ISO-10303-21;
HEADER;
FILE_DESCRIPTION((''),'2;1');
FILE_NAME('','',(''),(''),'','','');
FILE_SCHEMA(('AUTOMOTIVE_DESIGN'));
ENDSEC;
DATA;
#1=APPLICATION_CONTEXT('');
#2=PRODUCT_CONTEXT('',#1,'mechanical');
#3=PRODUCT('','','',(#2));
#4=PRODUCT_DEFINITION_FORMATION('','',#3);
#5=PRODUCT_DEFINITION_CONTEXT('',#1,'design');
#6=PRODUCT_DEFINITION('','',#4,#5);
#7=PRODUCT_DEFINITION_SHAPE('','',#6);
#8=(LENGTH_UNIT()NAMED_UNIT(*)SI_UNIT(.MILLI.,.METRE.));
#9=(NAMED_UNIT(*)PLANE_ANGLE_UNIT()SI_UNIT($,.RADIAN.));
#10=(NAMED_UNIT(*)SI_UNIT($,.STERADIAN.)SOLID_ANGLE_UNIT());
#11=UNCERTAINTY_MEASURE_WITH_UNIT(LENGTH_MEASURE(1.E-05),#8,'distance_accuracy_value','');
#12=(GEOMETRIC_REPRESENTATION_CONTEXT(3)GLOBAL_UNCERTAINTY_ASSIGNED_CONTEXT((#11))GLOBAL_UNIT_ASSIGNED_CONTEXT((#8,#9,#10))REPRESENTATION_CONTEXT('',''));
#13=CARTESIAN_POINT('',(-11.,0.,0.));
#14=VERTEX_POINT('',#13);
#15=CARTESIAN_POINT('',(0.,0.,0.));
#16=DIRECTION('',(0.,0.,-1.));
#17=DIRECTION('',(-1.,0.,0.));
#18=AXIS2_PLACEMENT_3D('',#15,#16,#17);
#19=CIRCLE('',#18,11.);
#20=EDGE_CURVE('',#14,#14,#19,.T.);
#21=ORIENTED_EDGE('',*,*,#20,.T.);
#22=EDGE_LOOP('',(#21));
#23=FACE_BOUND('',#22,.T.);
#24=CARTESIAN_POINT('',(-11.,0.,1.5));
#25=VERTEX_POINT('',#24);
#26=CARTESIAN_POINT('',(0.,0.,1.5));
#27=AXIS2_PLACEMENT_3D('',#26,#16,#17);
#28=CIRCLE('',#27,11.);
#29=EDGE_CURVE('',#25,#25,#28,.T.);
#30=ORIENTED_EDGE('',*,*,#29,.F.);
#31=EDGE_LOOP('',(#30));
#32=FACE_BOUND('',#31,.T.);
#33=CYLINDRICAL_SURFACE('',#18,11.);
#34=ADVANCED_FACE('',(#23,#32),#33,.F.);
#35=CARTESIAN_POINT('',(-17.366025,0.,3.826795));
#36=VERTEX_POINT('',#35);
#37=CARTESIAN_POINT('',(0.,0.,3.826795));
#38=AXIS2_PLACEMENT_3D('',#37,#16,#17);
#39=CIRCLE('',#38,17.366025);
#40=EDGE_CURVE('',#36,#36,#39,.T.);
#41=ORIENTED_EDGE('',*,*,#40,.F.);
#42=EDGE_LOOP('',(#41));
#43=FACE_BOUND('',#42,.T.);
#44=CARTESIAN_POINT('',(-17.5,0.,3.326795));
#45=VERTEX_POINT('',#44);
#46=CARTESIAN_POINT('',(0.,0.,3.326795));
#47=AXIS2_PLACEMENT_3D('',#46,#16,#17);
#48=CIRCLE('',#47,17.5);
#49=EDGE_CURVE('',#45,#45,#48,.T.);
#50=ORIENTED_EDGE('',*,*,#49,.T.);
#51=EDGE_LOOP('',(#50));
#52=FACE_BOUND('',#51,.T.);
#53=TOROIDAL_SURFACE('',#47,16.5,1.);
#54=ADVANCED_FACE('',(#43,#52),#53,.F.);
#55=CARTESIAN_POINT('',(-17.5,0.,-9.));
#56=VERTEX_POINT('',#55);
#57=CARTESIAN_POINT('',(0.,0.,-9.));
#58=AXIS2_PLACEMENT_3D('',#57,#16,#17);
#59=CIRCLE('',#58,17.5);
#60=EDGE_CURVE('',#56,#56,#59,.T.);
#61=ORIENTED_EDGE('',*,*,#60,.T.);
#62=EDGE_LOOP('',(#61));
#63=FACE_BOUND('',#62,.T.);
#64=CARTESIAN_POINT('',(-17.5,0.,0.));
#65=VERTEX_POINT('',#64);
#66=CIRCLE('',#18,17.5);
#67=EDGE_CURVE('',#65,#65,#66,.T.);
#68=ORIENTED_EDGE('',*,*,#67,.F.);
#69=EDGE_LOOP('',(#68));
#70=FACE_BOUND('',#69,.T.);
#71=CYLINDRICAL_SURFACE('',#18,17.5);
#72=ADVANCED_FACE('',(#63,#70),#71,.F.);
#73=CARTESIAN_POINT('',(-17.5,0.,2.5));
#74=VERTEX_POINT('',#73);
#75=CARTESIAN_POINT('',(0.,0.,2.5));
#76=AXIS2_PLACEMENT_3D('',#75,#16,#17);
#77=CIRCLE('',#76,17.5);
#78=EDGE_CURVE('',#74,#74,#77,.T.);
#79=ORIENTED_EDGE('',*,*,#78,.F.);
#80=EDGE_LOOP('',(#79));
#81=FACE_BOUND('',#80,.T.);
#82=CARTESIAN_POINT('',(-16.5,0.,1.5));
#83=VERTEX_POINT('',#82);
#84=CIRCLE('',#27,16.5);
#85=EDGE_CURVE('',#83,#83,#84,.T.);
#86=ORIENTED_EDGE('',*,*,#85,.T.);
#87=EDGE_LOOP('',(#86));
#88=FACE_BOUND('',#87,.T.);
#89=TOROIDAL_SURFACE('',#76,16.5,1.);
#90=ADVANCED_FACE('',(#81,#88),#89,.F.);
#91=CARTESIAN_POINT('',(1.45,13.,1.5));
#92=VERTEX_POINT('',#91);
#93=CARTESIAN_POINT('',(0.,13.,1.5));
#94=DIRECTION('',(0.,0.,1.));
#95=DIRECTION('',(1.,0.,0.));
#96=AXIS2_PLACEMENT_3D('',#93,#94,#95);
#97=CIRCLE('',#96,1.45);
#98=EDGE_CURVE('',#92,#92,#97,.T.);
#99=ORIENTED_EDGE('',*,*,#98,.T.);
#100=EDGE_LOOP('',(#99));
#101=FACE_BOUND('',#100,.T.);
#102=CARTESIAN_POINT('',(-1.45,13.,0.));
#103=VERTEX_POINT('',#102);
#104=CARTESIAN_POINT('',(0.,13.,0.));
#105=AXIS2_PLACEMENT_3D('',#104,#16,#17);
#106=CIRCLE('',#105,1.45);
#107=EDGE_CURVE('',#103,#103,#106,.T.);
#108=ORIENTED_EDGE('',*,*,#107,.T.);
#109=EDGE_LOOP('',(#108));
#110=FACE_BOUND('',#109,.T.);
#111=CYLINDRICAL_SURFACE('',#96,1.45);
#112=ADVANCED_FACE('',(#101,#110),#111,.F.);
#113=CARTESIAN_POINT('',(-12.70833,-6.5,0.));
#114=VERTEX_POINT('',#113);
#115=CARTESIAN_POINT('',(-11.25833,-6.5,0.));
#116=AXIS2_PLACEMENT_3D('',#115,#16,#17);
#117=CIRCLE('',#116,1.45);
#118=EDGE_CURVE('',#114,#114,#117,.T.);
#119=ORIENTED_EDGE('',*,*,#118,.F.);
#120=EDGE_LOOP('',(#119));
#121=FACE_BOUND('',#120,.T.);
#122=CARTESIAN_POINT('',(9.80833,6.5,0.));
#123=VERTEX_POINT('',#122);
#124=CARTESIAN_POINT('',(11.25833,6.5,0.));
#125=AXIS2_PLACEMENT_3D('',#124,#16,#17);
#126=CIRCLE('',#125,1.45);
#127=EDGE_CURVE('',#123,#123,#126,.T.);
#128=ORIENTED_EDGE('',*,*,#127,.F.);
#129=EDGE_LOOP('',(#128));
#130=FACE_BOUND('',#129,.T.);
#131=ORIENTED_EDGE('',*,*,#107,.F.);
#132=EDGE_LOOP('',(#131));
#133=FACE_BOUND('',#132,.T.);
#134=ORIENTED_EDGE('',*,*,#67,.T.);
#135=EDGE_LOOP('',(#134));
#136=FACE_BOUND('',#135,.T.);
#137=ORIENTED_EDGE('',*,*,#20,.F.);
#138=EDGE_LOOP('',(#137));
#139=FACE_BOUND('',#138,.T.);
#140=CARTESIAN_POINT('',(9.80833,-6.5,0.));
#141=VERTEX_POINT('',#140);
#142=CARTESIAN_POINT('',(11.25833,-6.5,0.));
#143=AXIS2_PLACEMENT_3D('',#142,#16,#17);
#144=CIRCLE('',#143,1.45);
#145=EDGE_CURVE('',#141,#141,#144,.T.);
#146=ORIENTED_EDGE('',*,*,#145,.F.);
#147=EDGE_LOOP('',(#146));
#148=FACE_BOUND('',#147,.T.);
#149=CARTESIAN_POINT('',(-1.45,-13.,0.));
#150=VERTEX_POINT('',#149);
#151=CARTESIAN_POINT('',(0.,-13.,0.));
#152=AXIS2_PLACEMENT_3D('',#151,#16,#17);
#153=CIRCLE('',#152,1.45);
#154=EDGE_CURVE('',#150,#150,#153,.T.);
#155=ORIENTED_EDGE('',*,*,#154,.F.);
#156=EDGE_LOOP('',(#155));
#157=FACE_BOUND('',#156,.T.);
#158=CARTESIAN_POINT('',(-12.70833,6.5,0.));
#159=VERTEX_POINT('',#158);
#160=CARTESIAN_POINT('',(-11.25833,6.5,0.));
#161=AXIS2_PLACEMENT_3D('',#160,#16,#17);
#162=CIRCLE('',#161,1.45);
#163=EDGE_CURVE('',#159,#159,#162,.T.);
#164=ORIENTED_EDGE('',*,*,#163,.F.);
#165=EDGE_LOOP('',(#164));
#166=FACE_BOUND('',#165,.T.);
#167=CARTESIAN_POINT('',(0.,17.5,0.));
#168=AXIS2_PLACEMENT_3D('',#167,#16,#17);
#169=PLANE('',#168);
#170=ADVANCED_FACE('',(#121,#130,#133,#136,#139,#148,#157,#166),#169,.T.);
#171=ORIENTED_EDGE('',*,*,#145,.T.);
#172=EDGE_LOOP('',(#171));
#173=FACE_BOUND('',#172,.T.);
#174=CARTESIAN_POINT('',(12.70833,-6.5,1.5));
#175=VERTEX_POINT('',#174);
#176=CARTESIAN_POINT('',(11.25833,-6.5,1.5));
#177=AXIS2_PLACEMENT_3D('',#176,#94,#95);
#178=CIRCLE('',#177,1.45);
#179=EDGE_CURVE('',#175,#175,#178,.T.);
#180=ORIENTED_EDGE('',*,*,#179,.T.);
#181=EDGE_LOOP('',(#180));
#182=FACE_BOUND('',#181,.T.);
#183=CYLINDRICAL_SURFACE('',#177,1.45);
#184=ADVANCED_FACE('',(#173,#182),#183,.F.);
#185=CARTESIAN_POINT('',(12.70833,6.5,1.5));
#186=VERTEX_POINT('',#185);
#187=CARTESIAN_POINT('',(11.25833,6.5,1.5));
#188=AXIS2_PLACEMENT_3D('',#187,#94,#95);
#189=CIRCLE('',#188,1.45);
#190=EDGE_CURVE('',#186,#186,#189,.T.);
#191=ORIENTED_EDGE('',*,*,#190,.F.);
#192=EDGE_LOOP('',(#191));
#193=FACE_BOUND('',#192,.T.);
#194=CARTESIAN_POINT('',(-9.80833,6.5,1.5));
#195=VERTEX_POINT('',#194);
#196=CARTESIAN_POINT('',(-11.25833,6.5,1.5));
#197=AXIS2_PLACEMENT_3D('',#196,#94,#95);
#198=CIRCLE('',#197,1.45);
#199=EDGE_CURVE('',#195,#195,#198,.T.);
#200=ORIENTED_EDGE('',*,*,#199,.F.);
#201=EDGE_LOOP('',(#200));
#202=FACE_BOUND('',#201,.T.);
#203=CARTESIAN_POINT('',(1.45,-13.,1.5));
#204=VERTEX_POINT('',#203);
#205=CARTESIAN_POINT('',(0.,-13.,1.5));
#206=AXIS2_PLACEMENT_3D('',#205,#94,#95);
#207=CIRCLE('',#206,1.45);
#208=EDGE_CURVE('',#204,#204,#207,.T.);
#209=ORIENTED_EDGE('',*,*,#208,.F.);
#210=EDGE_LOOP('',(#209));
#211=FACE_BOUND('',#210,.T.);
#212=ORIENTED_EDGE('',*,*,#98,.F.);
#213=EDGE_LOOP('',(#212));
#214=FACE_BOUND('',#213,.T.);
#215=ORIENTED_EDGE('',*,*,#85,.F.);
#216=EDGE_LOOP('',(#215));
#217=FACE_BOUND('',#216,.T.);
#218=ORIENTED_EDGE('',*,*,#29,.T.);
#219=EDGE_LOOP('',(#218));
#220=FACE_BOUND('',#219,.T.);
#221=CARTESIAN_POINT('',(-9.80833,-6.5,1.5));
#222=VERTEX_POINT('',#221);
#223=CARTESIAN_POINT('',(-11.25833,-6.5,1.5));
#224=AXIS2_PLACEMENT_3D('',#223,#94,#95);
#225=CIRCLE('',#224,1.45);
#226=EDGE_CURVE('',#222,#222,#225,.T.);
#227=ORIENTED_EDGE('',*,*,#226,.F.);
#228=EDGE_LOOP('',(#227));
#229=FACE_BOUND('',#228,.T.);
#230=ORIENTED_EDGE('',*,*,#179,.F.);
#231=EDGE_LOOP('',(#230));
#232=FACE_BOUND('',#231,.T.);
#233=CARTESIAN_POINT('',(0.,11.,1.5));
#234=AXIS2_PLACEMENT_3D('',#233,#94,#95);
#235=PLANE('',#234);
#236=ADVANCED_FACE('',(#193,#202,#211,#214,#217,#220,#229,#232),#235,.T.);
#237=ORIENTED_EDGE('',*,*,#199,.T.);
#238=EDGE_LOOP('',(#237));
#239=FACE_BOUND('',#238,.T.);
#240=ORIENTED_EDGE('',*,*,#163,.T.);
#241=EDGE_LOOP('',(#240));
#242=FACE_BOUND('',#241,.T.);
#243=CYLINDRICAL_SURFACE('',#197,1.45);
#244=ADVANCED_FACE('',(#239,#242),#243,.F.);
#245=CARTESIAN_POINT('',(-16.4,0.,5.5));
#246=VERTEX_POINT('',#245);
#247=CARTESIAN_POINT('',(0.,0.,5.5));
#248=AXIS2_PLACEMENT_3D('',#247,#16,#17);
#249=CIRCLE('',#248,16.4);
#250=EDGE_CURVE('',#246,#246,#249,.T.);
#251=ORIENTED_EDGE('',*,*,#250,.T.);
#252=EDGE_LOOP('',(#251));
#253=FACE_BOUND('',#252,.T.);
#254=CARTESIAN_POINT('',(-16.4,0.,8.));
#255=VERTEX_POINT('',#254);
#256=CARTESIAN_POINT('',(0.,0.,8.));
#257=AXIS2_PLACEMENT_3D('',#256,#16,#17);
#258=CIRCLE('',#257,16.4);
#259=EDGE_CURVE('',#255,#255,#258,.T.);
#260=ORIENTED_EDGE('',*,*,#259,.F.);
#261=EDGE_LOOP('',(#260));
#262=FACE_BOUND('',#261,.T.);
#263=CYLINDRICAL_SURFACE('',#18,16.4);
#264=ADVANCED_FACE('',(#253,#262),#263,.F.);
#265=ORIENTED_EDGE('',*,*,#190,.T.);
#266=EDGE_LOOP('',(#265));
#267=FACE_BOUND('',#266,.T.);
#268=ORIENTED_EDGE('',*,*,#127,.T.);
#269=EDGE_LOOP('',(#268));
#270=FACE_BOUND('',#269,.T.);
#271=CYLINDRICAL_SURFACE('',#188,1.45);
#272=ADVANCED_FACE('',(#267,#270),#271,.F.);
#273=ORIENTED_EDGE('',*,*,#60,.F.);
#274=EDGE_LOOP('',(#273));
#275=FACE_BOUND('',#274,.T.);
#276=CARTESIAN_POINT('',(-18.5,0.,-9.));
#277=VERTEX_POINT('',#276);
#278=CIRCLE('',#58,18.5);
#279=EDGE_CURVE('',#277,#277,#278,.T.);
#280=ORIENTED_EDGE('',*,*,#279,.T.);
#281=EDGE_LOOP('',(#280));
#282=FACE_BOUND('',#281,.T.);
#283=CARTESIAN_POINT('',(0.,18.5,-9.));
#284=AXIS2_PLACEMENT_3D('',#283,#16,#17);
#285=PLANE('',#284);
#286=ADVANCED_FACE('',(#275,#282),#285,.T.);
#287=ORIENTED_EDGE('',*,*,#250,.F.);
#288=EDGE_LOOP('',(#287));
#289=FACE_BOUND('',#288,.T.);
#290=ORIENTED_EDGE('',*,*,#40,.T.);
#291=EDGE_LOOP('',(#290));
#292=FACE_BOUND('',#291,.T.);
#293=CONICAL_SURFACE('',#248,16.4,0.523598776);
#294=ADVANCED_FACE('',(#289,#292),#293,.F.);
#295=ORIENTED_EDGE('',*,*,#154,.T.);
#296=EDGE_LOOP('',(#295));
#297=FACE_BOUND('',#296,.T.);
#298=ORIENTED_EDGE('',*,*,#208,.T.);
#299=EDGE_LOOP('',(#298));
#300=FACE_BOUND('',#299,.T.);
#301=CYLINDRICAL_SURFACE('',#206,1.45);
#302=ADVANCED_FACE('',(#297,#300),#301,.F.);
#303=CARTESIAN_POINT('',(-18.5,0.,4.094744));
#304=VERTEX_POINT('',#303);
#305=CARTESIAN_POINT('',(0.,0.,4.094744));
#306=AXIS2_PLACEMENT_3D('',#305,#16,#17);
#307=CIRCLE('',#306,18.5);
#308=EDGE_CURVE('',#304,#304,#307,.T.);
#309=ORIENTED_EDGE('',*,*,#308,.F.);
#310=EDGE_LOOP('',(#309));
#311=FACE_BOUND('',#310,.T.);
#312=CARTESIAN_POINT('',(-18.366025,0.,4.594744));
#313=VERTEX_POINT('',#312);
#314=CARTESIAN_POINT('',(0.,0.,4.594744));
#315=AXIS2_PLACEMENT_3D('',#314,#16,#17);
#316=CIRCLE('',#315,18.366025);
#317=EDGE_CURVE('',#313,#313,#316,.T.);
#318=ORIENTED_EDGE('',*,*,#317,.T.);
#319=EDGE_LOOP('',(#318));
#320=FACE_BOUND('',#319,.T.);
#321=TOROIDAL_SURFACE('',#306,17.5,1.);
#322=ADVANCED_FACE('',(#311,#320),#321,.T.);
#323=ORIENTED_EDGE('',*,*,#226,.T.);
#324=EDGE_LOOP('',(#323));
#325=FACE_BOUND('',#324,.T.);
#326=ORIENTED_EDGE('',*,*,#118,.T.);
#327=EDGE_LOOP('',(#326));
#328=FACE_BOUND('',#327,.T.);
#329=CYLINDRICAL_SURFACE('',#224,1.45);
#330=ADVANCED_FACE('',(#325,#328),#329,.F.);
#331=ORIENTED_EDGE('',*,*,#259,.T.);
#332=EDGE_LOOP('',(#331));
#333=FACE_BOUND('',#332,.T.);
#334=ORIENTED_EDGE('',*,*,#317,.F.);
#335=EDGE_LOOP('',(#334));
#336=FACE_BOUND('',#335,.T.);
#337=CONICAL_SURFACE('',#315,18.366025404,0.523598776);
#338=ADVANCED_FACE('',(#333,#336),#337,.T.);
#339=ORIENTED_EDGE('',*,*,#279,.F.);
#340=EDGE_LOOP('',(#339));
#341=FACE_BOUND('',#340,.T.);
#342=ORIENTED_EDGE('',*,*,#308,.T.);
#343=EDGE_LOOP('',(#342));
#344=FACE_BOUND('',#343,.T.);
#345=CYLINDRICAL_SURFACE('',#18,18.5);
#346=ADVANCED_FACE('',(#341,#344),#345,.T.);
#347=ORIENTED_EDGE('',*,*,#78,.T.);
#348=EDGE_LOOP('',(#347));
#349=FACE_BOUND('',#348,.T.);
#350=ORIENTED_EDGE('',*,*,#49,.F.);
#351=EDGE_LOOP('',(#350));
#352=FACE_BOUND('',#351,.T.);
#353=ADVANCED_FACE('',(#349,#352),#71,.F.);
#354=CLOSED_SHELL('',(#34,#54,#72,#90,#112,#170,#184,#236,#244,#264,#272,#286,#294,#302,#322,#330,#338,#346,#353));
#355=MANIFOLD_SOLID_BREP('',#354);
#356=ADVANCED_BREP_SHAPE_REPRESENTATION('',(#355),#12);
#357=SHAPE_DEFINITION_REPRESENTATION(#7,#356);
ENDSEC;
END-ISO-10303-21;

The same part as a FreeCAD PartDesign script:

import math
import FreeCAD as App
import Part
import Sketcher
from FreeCAD import Vector
Q = App.Units.Quantity

doc = App.newDocument("Part")
body = doc.addObject("PartDesign::Body", "Body")

# Sketch on YZ plane
sketch1 = body.newObject("Sketcher::SketchObject", "Sketch")
sketch1.AttachmentSupport = (doc.getObject("YZ_Plane"), [""])
sketch1.MapMode = "FlatFace"
sketch1.addGeometry([
    Part.LineSegment(Vector(18.366025, 4.594744, 0), Vector(16.4, 8, 0)),  # 0
    Part.LineSegment(Vector(16.4, 8, 0), Vector(16.4, 5.5, 0)),  # 1
    Part.LineSegment(Vector(16.4, 5.5, 0), Vector(17.366025, 3.826795, 0)),  # 2
    Part.ArcOfCircle(Part.Circle(Vector(16.5, 3.326795, 0), Vector(0, 0, 1), 1), math.radians(0), math.radians(30)),  # 3
    Part.LineSegment(Vector(17.5, 3.326795, 0), Vector(17.5, 2.5, 0)),  # 4
    Part.ArcOfCircle(Part.Circle(Vector(16.5, 2.5, 0), Vector(0, 0, 1), 1), math.radians(-90), math.radians(0)),  # 5
    Part.LineSegment(Vector(16.5, 1.5, 0), Vector(11, 1.5, 0)),  # 6
    Part.LineSegment(Vector(11, 1.5, 0), Vector(11, 0, 0)),  # 7
    Part.LineSegment(Vector(11, 0, 0), Vector(17.5, 0, 0)),  # 8
    Part.LineSegment(Vector(17.5, 0, 0), Vector(17.5, -9, 0)),  # 9
    Part.LineSegment(Vector(17.5, -9, 0), Vector(18.5, -9, 0)),  # 10
    Part.LineSegment(Vector(18.5, -9, 0), Vector(18.5, 4.094744, 0)),  # 11
    Part.ArcOfCircle(Part.Circle(Vector(17.5, 4.094744, 0), Vector(0, 0, 1), 1), math.radians(0), math.radians(30)),  # 12
], False)
sketch1.addConstraint([
    Sketcher.Constraint("Coincident", 0, 2, 1, 1),
    Sketcher.Constraint("Coincident", 1, 2, 2, 1),
    Sketcher.Constraint("Tangent", 2, 2, 3, 2),
    Sketcher.Constraint("Tangent", 3, 1, 4, 1),
    Sketcher.Constraint("Tangent", 4, 2, 5, 2),
    Sketcher.Constraint("Tangent", 5, 1, 6, 1),
    Sketcher.Constraint("Coincident", 6, 2, 7, 1),
    Sketcher.Constraint("Coincident", 7, 2, 8, 1),
    Sketcher.Constraint("Coincident", 8, 2, 9, 1),
    Sketcher.Constraint("Coincident", 9, 2, 10, 1),
    Sketcher.Constraint("Coincident", 10, 2, 11, 1),
    Sketcher.Constraint("Tangent", 11, 2, 12, 1),
    Sketcher.Constraint("Tangent", 12, 2, 0, 1),
    Sketcher.Constraint("Vertical", 1),
    Sketcher.Constraint("Vertical", 4),
    Sketcher.Constraint("Horizontal", 6),
    Sketcher.Constraint("Vertical", 7),
    Sketcher.Constraint("Horizontal", 8),
    Sketcher.Constraint("Vertical", 9),
    Sketcher.Constraint("Horizontal", 10),
    Sketcher.Constraint("Vertical", 11),
    Sketcher.Constraint("Equal", 3, 5),
    Sketcher.Constraint("Equal", 5, 12),
    Sketcher.Constraint("PointOnObject", 7, 2, -1),
    Sketcher.Constraint("Parallel", 0, 2),
    Sketcher.Constraint("Vertical", 12, 3, 3, 1),
    Sketcher.Constraint("Vertical", 4, 2, 8, 2),
    Sketcher.Constraint("Radius", 3, Q("1 mm")),
    Sketcher.Constraint("DistanceY", 9, 2, 9, 1, Q("9 mm")),
    Sketcher.Constraint("Angle", 0, Q("120 deg")),
    Sketcher.Constraint("DistanceX", 6, 2, 6, 1, Q("5.5 mm")),
    Sketcher.Constraint("DistanceY", 1, 2, 1, 1, Q("2.5 mm")),
    Sketcher.Constraint("DistanceY", 7, 2, 7, 1, Q("1.5 mm")),
    Sketcher.Constraint("DistanceY", -1, 1, 0, 2, Q("8 mm")),
    Sketcher.Constraint("DistanceX", -1, 1, 6, 2, Q("11 mm")),
    Sketcher.Constraint("DistanceX", -1, 1, 0, 2, Q("16.4 mm")),
])
revolution = body.newObject("PartDesign::Revolution", "Revolution")
revolution.Profile = sketch1
revolution.ReferenceAxis = (sketch1, ["V_Axis"])
revolution.Angle = 360

# Sketch on YZ plane
sketch2 = body.newObject("Sketcher::SketchObject", "Sketch001")
sketch2.AttachmentSupport = (doc.getObject("YZ_Plane"), [""])
sketch2.MapMode = "FlatFace"
sketch2.addGeometry([
    Part.LineSegment(Vector(13, -22.371248, 0), Vector(13, 1.5, 0)),
    Part.LineSegment(Vector(13, 1.5, 0), Vector(11.55, 1.5, 0)),
    Part.LineSegment(Vector(11.55, 1.5, 0), Vector(11.55, -21.5, 0)),
    Part.LineSegment(Vector(11.55, -21.5, 0), Vector(13, -22.371248, 0)),
], False)
sketch2.addGeometry(Part.LineSegment(Vector(13, 1.5, 0), Vector(13, -22.371248, 0)), True)  # axis
sketch2.addConstraint([
    Sketcher.Constraint("Coincident", 0, 2, 1, 1),
    Sketcher.Constraint("Coincident", 1, 2, 2, 1),
    Sketcher.Constraint("Coincident", 2, 2, 3, 1),
    Sketcher.Constraint("Coincident", 3, 2, 0, 1),
    Sketcher.Constraint("Vertical", 0),
    Sketcher.Constraint("Horizontal", 1),
    Sketcher.Constraint("Vertical", 2),
    Sketcher.Constraint("Vertical", 4),
    Sketcher.Constraint("Coincident", 4, 1, 0, 2),
    Sketcher.Constraint("Equal", 0, 4),
    Sketcher.Constraint("DistanceY", 2, 2, 2, 1, Q("23 mm")),
    Sketcher.Constraint("Angle", 3, Q("-31 deg")),
    Sketcher.Constraint("DistanceX", -1, 1, 0, 2, Q("13 mm")),
    Sketcher.Constraint("DistanceX", 1, 2, 1, 1, Q("1.45 mm")),
    Sketcher.Constraint("DistanceY", -1, 1, 0, 2, Q("1.5 mm")),
])
groove = body.newObject("PartDesign::Groove", "Groove")
groove.Profile = sketch2
groove.ReferenceAxis = (sketch2, ["Axis0"])
groove.Angle = 360
doc.recompute()

polarpattern = body.newObject("PartDesign::PolarPattern", "PolarPattern")
polarpattern.Originals = [groove]
polarpattern.Axis = (doc.getObject("Z_Axis"), [""])
polarpattern.Angle = 360
polarpattern.Occurrences = 6
body.Tip = polarpattern

doc.recompute()
